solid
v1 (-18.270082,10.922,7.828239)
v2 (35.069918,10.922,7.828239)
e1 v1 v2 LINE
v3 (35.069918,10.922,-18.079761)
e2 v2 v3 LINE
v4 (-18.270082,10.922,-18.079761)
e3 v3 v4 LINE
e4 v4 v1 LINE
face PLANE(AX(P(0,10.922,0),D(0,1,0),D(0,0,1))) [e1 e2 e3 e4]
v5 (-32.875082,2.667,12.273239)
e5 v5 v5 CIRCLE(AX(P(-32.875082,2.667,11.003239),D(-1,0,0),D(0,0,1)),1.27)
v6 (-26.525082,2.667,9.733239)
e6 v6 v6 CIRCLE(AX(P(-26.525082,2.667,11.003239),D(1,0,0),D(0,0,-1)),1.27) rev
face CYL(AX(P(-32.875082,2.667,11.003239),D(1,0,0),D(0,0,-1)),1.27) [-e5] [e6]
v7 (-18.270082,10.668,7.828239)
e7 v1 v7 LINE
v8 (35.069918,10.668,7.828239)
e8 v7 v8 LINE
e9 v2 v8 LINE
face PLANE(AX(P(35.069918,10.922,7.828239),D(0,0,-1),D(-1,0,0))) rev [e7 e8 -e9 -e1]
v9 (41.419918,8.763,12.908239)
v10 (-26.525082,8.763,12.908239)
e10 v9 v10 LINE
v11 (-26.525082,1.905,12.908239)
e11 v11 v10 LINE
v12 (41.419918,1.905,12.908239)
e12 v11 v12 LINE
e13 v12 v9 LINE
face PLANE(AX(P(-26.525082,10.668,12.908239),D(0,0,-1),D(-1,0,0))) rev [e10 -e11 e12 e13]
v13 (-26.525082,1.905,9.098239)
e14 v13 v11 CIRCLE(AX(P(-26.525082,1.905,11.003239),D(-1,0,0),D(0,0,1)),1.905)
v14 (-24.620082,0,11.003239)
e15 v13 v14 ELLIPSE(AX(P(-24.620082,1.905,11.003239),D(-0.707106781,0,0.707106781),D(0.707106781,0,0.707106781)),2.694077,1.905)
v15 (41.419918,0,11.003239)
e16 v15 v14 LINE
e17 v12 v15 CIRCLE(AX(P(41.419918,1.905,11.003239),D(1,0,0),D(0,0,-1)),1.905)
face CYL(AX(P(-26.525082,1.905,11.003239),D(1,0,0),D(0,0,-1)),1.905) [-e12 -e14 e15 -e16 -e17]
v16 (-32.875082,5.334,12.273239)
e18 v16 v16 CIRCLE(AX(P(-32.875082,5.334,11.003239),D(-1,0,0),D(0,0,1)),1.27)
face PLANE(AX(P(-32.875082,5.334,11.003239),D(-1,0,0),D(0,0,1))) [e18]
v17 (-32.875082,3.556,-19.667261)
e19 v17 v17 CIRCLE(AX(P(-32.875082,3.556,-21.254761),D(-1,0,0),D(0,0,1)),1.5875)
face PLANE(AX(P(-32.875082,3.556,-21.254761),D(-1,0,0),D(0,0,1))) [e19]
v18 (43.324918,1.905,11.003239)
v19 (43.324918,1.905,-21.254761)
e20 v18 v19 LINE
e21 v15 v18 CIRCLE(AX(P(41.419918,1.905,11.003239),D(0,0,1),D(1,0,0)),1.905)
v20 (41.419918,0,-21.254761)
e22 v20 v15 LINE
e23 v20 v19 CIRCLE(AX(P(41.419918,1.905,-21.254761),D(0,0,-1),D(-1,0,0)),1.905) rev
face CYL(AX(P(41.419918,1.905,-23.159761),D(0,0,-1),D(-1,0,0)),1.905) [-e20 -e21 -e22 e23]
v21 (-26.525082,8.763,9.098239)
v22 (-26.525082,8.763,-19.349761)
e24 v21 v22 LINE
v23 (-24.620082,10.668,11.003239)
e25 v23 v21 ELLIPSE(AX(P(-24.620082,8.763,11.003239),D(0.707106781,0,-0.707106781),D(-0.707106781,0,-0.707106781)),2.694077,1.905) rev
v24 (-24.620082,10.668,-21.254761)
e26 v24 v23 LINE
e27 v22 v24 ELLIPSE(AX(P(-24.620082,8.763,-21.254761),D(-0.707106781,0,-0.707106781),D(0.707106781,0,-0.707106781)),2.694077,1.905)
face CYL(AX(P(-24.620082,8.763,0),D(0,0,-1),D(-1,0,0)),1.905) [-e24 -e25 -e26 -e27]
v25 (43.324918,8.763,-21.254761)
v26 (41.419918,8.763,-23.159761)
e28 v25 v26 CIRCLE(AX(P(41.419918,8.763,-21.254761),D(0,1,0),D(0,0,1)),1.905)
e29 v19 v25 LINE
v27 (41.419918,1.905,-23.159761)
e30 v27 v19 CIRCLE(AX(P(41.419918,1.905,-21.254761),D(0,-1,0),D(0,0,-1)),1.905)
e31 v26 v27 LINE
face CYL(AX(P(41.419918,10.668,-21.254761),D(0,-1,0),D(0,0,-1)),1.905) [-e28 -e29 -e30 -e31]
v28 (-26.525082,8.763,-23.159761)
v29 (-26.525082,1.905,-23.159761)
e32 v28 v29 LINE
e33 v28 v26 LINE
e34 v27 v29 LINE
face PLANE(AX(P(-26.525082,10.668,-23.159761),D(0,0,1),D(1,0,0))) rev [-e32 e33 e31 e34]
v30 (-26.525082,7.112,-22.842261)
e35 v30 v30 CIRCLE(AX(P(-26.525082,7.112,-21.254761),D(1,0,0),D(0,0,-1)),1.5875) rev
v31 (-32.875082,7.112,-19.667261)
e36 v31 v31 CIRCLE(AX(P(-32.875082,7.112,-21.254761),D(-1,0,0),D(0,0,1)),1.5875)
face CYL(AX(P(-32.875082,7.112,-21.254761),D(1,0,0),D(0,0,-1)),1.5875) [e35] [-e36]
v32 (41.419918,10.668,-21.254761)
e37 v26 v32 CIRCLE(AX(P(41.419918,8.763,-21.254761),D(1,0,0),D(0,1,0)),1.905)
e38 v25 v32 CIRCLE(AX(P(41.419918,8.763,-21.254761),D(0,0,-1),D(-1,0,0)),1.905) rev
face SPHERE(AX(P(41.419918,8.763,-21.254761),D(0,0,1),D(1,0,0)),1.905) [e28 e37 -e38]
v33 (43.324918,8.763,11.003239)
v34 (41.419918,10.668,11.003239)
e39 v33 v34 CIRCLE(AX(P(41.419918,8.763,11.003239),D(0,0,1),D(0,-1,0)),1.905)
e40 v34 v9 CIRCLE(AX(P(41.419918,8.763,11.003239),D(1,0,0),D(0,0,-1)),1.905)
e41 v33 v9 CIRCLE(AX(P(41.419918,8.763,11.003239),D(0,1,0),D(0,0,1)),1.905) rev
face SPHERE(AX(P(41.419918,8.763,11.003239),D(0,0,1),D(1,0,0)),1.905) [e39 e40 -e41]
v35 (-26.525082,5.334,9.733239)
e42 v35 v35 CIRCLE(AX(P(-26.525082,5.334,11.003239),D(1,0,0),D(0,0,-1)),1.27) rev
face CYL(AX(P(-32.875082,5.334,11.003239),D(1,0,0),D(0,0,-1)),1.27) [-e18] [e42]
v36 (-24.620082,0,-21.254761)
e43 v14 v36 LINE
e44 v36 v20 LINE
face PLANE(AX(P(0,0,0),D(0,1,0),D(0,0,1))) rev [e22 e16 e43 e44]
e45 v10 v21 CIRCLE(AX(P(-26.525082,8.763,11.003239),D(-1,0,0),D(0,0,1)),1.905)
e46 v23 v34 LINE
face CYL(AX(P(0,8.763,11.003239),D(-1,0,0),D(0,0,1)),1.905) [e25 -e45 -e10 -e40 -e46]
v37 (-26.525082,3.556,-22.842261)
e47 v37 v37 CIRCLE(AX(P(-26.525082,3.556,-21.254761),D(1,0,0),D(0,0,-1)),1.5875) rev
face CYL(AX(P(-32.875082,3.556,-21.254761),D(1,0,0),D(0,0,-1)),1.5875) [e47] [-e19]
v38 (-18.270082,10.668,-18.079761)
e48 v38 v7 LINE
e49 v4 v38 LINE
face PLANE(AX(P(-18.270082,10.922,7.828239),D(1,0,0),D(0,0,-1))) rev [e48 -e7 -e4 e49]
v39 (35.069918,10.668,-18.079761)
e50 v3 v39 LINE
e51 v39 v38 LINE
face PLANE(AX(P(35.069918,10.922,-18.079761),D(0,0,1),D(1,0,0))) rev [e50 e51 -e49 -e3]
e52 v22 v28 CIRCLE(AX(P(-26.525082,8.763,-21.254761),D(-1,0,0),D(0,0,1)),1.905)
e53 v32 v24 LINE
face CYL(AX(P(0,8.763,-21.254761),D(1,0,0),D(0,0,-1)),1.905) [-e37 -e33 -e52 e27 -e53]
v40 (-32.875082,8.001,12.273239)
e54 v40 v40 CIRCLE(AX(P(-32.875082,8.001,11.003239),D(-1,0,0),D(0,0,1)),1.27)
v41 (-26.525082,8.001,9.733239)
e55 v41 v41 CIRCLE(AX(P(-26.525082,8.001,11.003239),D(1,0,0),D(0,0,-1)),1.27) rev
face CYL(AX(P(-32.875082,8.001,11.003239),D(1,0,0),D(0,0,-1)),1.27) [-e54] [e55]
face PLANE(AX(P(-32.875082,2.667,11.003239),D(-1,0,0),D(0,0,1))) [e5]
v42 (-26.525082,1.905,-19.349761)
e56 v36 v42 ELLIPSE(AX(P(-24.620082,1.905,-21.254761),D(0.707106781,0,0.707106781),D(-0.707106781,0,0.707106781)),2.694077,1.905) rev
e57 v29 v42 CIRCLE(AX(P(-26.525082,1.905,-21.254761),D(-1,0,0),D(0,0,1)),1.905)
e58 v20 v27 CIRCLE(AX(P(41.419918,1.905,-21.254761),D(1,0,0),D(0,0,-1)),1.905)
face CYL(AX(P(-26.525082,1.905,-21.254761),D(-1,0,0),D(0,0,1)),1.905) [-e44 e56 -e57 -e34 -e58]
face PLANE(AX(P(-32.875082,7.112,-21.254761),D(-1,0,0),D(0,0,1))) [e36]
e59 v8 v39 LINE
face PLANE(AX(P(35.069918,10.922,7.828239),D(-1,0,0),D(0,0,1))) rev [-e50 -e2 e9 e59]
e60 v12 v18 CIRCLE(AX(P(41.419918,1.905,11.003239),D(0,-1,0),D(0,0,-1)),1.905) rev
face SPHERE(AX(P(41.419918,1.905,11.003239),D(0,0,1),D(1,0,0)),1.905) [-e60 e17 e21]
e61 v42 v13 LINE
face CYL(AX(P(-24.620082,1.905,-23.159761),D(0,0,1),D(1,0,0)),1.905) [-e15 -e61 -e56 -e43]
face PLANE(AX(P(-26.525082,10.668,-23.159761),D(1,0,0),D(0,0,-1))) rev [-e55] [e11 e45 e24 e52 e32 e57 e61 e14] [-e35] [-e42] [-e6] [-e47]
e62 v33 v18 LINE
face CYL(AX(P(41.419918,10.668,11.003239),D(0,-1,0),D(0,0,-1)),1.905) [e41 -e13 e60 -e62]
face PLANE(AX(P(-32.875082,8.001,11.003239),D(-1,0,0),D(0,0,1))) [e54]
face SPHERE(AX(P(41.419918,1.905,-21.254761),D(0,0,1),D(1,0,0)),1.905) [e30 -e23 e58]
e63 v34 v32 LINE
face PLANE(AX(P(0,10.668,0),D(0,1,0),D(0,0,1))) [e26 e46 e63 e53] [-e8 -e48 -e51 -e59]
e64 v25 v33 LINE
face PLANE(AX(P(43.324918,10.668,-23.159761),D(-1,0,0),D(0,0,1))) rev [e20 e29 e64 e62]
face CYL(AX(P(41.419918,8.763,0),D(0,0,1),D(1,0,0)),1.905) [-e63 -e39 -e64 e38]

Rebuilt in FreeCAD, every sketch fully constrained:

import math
import FreeCAD as App
import Part
import Sketcher

V = App.Vector
Q = App.Units.Quantity


def add_polygon(sketch, points):
    """Adds a closed chain of lines whose ends are joined by coincident constraints."""
    first, n = sketch.GeometryCount, len(points)
    for a, b in zip(points, points[1:] + points[:1]):
        sketch.addGeometry(Part.LineSegment(App.Vector(*a, 0), App.Vector(*b, 0)), False)
    for i in range(n):
        sketch.addConstraint(Sketcher.Constraint("Coincident", first + i, 2, first + (i + 1) % n, 1))

doc = App.newDocument("Part")
body = doc.addObject("PartDesign::Body", "Body")

sketch1 = doc.addObject("Sketcher::SketchObject", "Sketch")
body.addObject(sketch1)
sketch1.AttachmentSupport = (doc.XZ_Plane, [""])
sketch1.MapMode = "FlatFace"
add_polygon(sketch1, [(-27, -23), (-27, 13), (43, 13), (43, -23)])
sketch1.addConstraint([
    Sketcher.Constraint("Vertical", 0),
    Sketcher.Constraint("Horizontal", 1),
    Sketcher.Constraint("Vertical", 2),
    Sketcher.Constraint("Horizontal", 3),
    Sketcher.Constraint("DistanceX", 1, 1, 1, 2, Q("2.75 in")),
    Sketcher.Constraint("DistanceY", 0, 1, 0, 2, Q("1.42 in")),
    Sketcher.Constraint("DistanceY", -1, 1, 0, 2, Q("12.908239 mm")),
    Sketcher.Constraint("DistanceX", 0, 2, -1, 1, Q("26.525082 mm")),
])
pad1 = doc.addObject("PartDesign::Pad", "Pad")
body.addObject(pad1)
pad1.Profile = sketch1
pad1.Length = Q("0.42 in")
pad1.Reversed = True
doc.recompute()

fillet = doc.addObject("PartDesign::Fillet", "Fillet")
body.addObject(fillet)
fillet.Base = (pad1, ["Edge1"])
fillet.UseAllEdges = True
fillet.Radius = Q("0.075 in")

sketch2 = doc.addObject("Sketcher::SketchObject", "Sketch001")
body.addObject(sketch2)
sketch2.AttachmentSupport = (doc.YZ_Plane, [""])
sketch2.MapMode = "FlatFace"
sketch2.AttachmentOffset = App.Placement(V(0, 0, -26.525082), App.Rotation())
sketch2.addGeometry([
    Part.LineSegment(V(1.9, 12.9, 0), V(8.8, 12.9, 0)),
    Part.ArcOfCircle(Part.Circle(V(8.8, 11, 0), V(0, 0, 1), 1.9), math.radians(-90), math.radians(90)),
    Part.LineSegment(V(8.8, 9.1, 0), V(1.9, 9.1, 0)),
    Part.ArcOfCircle(Part.Circle(V(1.9, 11, 0), V(0, 0, 1), 1.9), math.radians(90), math.radians(270)),
    Part.LineSegment(V(1.9, -19.3, 0), V(8.8, -19.3, 0)),
    Part.ArcOfCircle(Part.Circle(V(8.8, -21.3, 0), V(0, 0, 1), 1.9), math.radians(-90), math.radians(90)),
    Part.LineSegment(V(8.8, -23.2, 0), V(1.9, -23.2, 0)),
    Part.ArcOfCircle(Part.Circle(V(1.9, -21.3, 0), V(0, 0, 1), 1.9), math.radians(90), math.radians(270)),
], False)
sketch2.addConstraint([
    Sketcher.Constraint("Tangent", 0, 2, 1, 2),
    Sketcher.Constraint("Tangent", 1, 1, 2, 1),
    Sketcher.Constraint("Tangent", 2, 2, 3, 2),
    Sketcher.Constraint("Tangent", 3, 1, 0, 1),
    Sketcher.Constraint("Tangent", 4, 2, 5, 2),
    Sketcher.Constraint("Tangent", 5, 1, 6, 1),
    Sketcher.Constraint("Tangent", 6, 2, 7, 2),
    Sketcher.Constraint("Tangent", 7, 1, 4, 1),
    Sketcher.Constraint("Horizontal", 0),
    Sketcher.Constraint("Horizontal", 2),
    Sketcher.Constraint("Horizontal", 4),
    Sketcher.Constraint("Horizontal", 6),
    Sketcher.Constraint("Equal", 3, 5),
    Sketcher.Constraint("Vertical", 1, 3, 5, 3),
    Sketcher.Constraint("Vertical", 3, 3, 7, 3),
    Sketcher.Constraint("Radius", 1, Q("0.075 in")),
    Sketcher.Constraint("DistanceX", 0, 1, 0, 2, Q("0.27 in")),
    Sketcher.Constraint("DistanceY", 5, 3, 1, 3, Q("1.27 in")),
    Sketcher.Constraint("DistanceX", -1, 1, 1, 3, Q("0.345 in")),
    Sketcher.Constraint("DistanceY", -1, 1, 1, 3, Q("11.003239 mm")),
])
pad2 = doc.addObject("PartDesign::Pad", "Pad001")
body.addObject(pad2)
pad2.Profile = sketch2
pad2.Length = Q("0.2 in")

sketch3 = doc.addObject("Sketcher::SketchObject", "Sketch002")
body.addObject(sketch3)
sketch3.AttachmentSupport = (doc.YZ_Plane, [""])
sketch3.MapMode = "FlatFace"
sketch3.AttachmentOffset = App.Placement(V(0, 0, -26.525082), App.Rotation())
sketch3.addGeometry([
    Part.Circle(V(8, 11, 0), V(0, 0, 1), 1.3),
    Part.Circle(V(5.3, 11, 0), V(0, 0, 1), 1.3),
    Part.Circle(V(2.7, 11, 0), V(0, 0, 1), 1.3),
    Part.Circle(V(7.1, -21.3, 0), V(0, 0, 1), 1.6),
    Part.Circle(V(3.6, -21.3, 0), V(0, 0, 1), 1.6),
], False)
sketch3.addConstraint([
    Sketcher.Constraint("Equal", 0, 1),
    Sketcher.Constraint("Equal", 1, 2),
    Sketcher.Constraint("Equal", 3, 4),
    Sketcher.Constraint("Horizontal", 0, 3, 1, 3),
    Sketcher.Constraint("Horizontal", 1, 3, 2, 3),
    Sketcher.Constraint("Horizontal", 3, 3, 4, 3),
    Sketcher.Constraint("Diameter", 0, Q("0.1 in")),
    Sketcher.Constraint("Diameter", 3, Q("0.125 in")),
    Sketcher.Constraint("DistanceX", -1, 1, 1, 3, Q("0.21 in")),
    Sketcher.Constraint("DistanceX", -1, 1, 3, 3, Q("0.28 in")),
    Sketcher.Constraint("DistanceX", -1, 1, 4, 3, Q("0.14 in")),
    Sketcher.Constraint("DistanceX", 2, 3, 0, 3, Q("0.21 in")),
    Sketcher.Constraint("DistanceY", 3, 3, 0, 3, Q("1.27 in")),
    Sketcher.Constraint("DistanceX", -1, 1, 0, 3, Q("0.315 in")),
    Sketcher.Constraint("DistanceY", -1, 1, 0, 3, Q("11.003239 mm")),
])
pad3 = doc.addObject("PartDesign::Pad", "Pad002")
body.addObject(pad3)
pad3.Profile = sketch3
pad3.Length = Q("0.25 in")
pad3.Reversed = True

sketch4 = doc.addObject("Sketcher::SketchObject", "Sketch003")
body.addObject(sketch4)
sketch4.AttachmentSupport = (doc.XZ_Plane, [""])
sketch4.MapMode = "FlatFace"
sketch4.AttachmentOffset = App.Placement(V(0, 0, -0.42 * 25.4), App.Rotation())
add_polygon(sketch4, [(-18, -18), (-18, 8), (35, 8), (35, -18)])
sketch4.addConstraint([
    Sketcher.Constraint("Vertical", 0),
    Sketcher.Constraint("Horizontal", 1),
    Sketcher.Constraint("Vertical", 2),
    Sketcher.Constraint("Horizontal", 3),
    Sketcher.Constraint("DistanceX", 1, 1, 1, 2, Q("2.1 in")),
    Sketcher.Constraint("DistanceY", 0, 1, 0, 2, Q("1.02 in")),
    Sketcher.Constraint("DistanceY", -1, 1, 0, 2, Q("7.828239 mm")),
    Sketcher.Constraint("DistanceX", 0, 2, -1, 1, Q("18.270082 mm")),
])
pad4 = doc.addObject("PartDesign::Pad", "Pad003")
body.addObject(pad4)
pad4.Profile = sketch4
pad4.Length = Q("0.01 in")
pad4.Reversed = True

doc.recompute()
